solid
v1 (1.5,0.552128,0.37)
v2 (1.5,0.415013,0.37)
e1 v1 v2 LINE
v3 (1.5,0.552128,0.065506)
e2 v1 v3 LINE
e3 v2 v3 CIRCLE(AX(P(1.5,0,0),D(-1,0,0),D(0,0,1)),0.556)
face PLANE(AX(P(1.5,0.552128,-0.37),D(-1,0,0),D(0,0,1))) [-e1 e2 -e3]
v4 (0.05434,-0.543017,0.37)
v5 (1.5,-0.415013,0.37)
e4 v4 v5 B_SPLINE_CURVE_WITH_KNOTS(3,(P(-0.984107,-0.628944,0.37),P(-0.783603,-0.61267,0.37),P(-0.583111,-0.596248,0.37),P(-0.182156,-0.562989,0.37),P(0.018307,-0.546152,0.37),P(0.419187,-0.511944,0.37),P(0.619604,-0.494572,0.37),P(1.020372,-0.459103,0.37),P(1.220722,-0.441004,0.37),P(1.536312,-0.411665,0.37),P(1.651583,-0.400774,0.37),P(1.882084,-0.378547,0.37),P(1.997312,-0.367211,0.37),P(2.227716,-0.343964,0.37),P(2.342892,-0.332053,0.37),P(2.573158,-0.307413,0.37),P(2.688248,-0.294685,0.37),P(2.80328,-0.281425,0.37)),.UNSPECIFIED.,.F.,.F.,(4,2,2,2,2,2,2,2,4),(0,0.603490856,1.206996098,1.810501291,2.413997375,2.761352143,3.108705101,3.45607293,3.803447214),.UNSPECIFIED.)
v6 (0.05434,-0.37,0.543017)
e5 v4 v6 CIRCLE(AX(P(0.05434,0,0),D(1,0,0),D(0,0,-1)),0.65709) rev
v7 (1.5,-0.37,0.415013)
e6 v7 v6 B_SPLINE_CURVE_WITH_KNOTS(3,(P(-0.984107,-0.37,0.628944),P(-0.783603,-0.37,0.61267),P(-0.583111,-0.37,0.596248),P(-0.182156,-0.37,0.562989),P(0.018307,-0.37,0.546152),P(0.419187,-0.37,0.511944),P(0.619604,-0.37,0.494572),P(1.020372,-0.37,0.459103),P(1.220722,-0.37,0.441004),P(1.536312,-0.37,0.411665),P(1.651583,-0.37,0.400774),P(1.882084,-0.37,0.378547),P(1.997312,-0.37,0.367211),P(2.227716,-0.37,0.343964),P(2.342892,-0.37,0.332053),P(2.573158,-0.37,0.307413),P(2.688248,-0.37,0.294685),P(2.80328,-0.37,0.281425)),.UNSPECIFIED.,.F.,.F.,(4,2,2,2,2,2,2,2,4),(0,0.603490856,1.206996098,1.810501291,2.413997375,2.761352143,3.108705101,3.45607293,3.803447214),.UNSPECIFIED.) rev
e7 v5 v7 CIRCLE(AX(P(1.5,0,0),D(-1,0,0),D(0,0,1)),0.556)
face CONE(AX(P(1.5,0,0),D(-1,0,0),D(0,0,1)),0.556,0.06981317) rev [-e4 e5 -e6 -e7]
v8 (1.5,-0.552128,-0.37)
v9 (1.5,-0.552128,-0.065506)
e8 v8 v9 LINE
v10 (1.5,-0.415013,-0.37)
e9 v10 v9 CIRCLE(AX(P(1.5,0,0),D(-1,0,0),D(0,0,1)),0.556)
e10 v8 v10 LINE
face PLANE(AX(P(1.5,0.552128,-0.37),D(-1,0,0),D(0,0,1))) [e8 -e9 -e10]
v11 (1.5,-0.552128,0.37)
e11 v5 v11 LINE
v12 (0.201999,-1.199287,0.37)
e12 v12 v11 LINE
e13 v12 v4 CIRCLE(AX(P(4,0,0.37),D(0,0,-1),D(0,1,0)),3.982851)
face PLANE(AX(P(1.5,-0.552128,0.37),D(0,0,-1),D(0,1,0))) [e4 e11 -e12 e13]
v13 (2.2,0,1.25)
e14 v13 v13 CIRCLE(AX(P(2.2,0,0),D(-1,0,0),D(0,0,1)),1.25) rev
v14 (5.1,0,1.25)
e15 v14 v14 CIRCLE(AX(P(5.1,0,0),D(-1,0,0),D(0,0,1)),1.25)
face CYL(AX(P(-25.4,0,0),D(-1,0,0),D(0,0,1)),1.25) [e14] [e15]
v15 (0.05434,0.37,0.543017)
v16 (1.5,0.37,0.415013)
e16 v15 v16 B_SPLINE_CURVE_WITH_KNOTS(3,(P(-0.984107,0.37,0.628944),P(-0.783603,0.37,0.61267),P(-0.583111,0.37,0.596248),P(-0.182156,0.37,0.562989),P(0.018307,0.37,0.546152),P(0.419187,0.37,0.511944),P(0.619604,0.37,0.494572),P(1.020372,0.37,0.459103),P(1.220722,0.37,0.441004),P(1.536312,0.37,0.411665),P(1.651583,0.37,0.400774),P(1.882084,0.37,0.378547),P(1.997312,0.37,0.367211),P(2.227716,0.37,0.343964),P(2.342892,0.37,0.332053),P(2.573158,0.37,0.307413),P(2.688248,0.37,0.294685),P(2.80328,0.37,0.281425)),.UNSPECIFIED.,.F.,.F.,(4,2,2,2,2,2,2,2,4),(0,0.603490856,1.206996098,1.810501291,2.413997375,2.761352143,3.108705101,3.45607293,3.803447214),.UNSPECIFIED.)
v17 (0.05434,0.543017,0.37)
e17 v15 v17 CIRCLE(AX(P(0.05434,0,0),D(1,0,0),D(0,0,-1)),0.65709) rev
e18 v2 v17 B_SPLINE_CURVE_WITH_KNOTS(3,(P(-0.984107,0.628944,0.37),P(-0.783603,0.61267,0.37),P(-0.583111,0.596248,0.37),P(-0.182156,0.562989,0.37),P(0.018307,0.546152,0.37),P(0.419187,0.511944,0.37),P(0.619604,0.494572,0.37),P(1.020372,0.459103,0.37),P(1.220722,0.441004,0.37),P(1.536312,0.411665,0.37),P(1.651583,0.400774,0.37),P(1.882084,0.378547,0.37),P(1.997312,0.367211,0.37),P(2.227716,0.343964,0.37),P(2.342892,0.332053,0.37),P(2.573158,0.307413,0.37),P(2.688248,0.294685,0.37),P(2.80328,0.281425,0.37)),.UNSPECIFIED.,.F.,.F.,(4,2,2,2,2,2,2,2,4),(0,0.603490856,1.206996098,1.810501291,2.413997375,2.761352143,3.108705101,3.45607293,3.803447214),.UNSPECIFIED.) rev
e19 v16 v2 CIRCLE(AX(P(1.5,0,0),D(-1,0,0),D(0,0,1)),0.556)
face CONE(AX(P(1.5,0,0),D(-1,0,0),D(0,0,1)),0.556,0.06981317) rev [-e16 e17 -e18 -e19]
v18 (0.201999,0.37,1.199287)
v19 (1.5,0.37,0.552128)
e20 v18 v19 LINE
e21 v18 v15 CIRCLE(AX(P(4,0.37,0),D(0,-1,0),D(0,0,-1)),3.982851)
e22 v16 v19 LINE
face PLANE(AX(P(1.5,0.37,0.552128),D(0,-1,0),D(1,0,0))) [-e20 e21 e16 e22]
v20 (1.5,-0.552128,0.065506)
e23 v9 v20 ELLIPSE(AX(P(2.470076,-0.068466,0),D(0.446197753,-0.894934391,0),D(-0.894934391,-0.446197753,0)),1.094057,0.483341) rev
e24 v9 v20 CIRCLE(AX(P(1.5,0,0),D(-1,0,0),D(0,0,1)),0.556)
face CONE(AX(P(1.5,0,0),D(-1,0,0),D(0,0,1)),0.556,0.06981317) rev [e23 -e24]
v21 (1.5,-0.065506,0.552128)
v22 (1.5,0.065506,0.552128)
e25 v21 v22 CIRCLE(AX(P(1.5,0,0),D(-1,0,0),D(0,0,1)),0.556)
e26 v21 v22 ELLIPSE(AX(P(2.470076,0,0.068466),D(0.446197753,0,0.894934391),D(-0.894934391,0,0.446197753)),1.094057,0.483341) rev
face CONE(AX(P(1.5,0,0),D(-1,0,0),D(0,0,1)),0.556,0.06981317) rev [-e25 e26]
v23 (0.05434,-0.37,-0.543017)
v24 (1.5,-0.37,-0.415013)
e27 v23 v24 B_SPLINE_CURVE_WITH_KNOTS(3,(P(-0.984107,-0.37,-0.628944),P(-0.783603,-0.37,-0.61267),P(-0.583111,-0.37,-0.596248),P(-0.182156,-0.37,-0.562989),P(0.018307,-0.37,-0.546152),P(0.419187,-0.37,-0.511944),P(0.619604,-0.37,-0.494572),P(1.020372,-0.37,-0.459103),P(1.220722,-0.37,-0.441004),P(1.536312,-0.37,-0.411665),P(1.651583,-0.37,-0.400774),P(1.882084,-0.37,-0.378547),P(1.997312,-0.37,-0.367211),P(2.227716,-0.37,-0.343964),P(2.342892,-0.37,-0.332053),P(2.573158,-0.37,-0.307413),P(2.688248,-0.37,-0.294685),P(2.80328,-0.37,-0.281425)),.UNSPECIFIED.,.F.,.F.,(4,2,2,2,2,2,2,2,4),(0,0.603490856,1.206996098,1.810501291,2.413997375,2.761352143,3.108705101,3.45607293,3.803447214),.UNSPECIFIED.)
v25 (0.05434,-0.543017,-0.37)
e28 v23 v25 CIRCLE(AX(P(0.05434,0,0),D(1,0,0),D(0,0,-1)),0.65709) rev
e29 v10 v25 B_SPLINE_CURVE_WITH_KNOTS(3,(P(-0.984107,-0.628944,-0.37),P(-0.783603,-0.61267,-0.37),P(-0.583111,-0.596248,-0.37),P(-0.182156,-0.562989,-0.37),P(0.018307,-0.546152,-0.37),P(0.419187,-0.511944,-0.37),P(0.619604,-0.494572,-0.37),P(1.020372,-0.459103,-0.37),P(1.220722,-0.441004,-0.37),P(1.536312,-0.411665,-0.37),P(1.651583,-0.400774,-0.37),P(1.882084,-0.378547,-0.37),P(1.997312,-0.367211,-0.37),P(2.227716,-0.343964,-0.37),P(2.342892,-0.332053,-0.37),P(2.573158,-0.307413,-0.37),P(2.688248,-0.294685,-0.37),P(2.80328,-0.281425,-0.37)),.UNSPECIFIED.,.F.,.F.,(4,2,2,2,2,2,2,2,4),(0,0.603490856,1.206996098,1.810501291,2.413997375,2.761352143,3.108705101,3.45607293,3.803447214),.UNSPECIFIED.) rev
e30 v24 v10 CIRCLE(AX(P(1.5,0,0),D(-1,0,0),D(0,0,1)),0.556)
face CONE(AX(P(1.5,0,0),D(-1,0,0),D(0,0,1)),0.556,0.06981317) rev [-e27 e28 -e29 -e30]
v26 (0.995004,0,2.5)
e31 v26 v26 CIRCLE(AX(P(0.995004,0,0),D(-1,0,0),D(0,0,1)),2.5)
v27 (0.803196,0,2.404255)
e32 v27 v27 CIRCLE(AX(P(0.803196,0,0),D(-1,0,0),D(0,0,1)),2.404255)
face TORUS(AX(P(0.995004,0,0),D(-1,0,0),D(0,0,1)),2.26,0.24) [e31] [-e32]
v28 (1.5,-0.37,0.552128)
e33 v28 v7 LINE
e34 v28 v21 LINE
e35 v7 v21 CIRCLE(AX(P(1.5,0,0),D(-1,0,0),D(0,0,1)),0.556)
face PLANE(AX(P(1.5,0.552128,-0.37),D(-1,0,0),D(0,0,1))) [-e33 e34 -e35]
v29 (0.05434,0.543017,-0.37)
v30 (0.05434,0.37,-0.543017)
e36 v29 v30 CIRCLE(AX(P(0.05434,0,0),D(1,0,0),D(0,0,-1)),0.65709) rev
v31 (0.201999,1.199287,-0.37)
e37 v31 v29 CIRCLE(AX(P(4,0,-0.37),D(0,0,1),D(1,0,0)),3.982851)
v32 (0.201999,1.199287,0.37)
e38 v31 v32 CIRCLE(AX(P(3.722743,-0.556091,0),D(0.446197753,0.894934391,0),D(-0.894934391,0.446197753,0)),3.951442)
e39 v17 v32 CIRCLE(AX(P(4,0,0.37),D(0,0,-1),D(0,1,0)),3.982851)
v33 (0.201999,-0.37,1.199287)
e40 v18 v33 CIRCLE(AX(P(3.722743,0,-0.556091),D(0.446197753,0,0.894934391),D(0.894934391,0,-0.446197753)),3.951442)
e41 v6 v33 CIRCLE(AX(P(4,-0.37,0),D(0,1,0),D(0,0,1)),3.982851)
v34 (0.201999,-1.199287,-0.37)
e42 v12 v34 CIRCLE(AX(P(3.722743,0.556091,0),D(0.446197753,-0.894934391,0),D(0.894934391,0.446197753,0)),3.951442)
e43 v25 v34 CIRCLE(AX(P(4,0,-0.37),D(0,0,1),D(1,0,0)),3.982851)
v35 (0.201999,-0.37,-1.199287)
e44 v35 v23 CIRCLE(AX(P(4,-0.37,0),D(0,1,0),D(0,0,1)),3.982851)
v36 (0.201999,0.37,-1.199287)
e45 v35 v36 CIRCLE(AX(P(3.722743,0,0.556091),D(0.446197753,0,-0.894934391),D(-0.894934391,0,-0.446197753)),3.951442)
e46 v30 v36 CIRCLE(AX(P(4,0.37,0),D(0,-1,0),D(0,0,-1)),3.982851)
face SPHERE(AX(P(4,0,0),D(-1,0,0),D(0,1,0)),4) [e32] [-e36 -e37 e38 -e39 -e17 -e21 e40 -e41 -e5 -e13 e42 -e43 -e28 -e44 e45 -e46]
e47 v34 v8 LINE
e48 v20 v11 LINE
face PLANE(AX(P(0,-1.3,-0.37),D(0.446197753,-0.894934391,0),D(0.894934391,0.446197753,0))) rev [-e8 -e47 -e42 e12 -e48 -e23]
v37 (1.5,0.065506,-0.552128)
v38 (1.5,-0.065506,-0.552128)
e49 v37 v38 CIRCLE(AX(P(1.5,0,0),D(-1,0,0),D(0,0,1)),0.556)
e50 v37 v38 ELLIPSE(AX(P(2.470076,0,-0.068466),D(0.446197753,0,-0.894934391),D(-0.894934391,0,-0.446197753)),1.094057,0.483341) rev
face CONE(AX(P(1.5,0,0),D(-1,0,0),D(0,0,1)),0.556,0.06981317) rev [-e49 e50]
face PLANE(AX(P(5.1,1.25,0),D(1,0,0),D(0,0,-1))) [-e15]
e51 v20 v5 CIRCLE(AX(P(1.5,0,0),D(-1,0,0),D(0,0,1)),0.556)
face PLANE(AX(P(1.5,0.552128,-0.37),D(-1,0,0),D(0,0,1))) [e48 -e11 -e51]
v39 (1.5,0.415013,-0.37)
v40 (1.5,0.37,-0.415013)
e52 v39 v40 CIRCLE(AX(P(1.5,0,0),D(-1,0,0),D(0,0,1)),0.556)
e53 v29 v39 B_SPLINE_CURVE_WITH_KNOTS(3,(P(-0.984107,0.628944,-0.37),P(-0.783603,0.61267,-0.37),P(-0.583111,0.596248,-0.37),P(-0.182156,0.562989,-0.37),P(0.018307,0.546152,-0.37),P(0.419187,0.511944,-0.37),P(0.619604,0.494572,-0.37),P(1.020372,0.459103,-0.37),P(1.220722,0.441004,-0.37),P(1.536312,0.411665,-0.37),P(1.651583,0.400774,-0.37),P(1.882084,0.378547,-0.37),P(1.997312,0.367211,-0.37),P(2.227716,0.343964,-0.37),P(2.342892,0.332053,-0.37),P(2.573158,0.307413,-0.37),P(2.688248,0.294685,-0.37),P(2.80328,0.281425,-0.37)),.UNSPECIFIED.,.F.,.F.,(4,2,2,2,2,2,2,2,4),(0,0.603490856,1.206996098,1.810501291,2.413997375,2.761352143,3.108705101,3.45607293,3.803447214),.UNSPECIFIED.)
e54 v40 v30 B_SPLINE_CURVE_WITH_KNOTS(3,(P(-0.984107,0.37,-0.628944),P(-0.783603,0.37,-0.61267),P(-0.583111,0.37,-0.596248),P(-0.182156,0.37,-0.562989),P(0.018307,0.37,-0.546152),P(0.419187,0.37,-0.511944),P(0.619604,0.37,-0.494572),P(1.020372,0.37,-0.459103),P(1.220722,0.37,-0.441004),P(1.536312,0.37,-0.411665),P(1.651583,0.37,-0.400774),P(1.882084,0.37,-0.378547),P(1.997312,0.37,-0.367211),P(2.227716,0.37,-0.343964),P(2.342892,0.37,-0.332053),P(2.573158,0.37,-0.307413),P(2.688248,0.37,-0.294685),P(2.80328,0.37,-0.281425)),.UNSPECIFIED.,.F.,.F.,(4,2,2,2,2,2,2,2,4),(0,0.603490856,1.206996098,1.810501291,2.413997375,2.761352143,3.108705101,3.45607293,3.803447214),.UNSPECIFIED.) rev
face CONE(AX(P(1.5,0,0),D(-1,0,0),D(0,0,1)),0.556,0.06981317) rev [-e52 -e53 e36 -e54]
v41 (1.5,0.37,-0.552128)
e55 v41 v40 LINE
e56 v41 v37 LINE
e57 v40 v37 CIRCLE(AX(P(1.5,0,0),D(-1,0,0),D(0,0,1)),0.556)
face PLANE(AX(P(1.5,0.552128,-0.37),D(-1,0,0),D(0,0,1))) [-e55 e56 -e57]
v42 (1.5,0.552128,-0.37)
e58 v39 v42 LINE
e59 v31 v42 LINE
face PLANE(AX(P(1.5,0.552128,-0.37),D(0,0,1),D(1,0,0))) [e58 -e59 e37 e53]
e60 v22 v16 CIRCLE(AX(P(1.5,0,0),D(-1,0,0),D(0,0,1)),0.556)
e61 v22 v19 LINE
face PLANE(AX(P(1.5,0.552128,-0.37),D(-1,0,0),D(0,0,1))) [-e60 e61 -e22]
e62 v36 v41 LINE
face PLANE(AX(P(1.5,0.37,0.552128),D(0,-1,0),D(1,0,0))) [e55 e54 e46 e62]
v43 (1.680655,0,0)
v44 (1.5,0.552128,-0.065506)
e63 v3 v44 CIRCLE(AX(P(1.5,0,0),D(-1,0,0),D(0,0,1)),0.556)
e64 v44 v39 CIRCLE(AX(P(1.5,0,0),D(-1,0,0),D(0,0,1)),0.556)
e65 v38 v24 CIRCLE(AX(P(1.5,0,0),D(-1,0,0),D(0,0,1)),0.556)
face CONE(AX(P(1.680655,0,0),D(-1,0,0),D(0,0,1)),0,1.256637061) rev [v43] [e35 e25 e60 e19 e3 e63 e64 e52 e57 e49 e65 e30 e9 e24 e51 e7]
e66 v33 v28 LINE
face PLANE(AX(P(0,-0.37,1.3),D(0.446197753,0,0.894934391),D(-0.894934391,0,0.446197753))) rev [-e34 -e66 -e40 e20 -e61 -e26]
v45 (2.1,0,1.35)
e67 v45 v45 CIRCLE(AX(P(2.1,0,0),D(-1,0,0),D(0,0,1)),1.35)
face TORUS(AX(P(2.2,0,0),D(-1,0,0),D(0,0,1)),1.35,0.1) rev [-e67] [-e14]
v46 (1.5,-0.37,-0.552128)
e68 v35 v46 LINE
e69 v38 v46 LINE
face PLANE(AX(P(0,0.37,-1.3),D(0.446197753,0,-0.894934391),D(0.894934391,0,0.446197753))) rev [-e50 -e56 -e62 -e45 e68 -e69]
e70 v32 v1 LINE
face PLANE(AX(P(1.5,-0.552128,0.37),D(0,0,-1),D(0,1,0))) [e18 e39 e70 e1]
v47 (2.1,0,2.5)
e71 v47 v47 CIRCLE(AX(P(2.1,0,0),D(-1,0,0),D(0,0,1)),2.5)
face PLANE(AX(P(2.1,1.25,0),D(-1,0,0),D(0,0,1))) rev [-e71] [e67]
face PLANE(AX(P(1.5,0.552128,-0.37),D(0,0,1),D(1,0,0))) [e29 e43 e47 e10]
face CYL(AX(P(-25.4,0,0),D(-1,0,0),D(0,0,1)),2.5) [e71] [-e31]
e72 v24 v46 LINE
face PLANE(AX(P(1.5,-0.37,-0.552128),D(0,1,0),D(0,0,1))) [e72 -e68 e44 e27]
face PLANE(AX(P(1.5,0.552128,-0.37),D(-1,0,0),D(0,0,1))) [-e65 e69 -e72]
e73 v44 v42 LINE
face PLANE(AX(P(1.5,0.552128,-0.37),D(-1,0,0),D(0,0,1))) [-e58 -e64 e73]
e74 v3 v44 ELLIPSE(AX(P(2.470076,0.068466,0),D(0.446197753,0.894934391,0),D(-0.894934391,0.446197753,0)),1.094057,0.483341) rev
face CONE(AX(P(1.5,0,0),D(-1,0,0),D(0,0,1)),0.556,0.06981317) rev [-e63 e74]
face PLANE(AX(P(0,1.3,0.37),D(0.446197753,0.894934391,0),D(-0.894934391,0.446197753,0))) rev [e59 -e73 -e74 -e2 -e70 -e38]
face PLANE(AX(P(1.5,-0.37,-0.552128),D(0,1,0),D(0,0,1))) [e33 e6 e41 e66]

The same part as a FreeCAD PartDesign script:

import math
import FreeCAD as App
import Part
import Sketcher
from FreeCAD import Vector
Q = App.Units.Quantity


def edges_at(feature, points):
    """Names of the edges that pass closest to the given points."""
    edges = feature.Shape.Edges
    near = lambda p: min(range(len(edges)), key=lambda i: edges[i].distToShape(Part.Vertex(*p))[0])
    return sorted({f"Edge{near(p) + 1}" for p in points})

doc = App.newDocument("Part")
body = doc.addObject("PartDesign::Body", "Body")

sketch1 = body.newObject("Sketcher::SketchObject", "Sketch")
sketch1.AttachmentSupport = (doc.getObject("XY_Plane"), [""])
sketch1.MapMode = "FlatFace"
sketch1.addGeometry(Part.LineSegment(Vector(2.1, 1.25, 0), Vector(2.1, 2.5, 0)), False)
sketch1.addGeometry(Part.LineSegment(Vector(2.1, 2.5, 0), Vector(0.995004, 2.5, 0)), False)
sketch1.addGeometry(Part.ArcOfCircle(Part.Circle(Vector(0.995004, 2.26, 0), Vector(0, 0, 1), 0.24), math.radians(90), math.radians(143.053873)), False)
sketch1.addGeometry(Part.ArcOfCircle(Part.Circle(Vector(4, 0, 0), Vector(0, 0, 1), 4), math.radians(143.053873), math.radians(180)), False)
sketch1.addGeometry(Part.LineSegment(Vector(0, 0, 0), Vector(5.1, 0, 0)), False)
sketch1.addGeometry(Part.LineSegment(Vector(5.1, 0, 0), Vector(5.1, 1.25, 0)), False)
sketch1.addGeometry(Part.LineSegment(Vector(5.1, 1.25, 0), Vector(2.1, 1.25, 0)), False)
sketch1.addConstraint(Sketcher.Constraint("Coincident", 0, 2, 1, 1))
sketch1.addConstraint(Sketcher.Constraint("Tangent", 1, 2, 2, 1))
sketch1.addConstraint(Sketcher.Constraint("Tangent", 2, 2, 3, 1))
sketch1.addConstraint(Sketcher.Constraint("Coincident", 3, 2, 4, 1))
sketch1.addConstraint(Sketcher.Constraint("Coincident", 4, 2, 5, 1))
sketch1.addConstraint(Sketcher.Constraint("Coincident", 5, 2, 6, 1))
sketch1.addConstraint(Sketcher.Constraint("Coincident", 6, 2, 0, 1))
sketch1.addConstraint(Sketcher.Constraint("Vertical", 0))
sketch1.addConstraint(Sketcher.Constraint("Horizontal", 1))
sketch1.addConstraint(Sketcher.Constraint("Horizontal", 4))
sketch1.addConstraint(Sketcher.Constraint("Vertical", 5))
sketch1.addConstraint(Sketcher.Constraint("Horizontal", 6))
sketch1.addConstraint(Sketcher.Constraint("Coincident", 3, 2, -1, 1))
sketch1.addConstraint(Sketcher.Constraint("PointOnObject", 3, 3, -1))
sketch1.addConstraint(Sketcher.Constraint("Equal", 0, 5))
sketch1.addConstraint(Sketcher.Constraint("Radius", 3, Q("4 mm")))
sketch1.addConstraint(Sketcher.Constraint("DistanceX", 6, 2, 6, 1, Q("3 mm")))
sketch1.addConstraint(Sketcher.Constraint("Radius", 2, Q("0.24 mm")))
sketch1.addConstraint(Sketcher.Constraint("DistanceX", 4, 1, 4, 2, Q("5.1 mm")))
sketch1.addConstraint(Sketcher.Constraint("DistanceY", 0, 1, 0, 2, Q("1.25 mm")))
revolution = body.newObject("PartDesign::Revolution", "Revolution")
revolution.Profile = sketch1
revolution.ReferenceAxis = (sketch1, ["H_Axis"])
revolution.Angle = 360
doc.recompute()

fillet = body.newObject("PartDesign::Fillet", "Fillet")
fillet.Base = (revolution, edges_at(revolution, [(2.1, 0, -1.25)]))
fillet.Radius = 0.1

sketch2 = body.newObject("Sketcher::SketchObject", "Sketch001")
sketch2.AttachmentSupport = (doc.getObject("YZ_Plane"), [""])
sketch2.MapMode = "FlatFace"
sketch2.addGeometry(Part.LineSegment(Vector(-1.3, 0.37, 0), Vector(-1.3, -0.37, 0)), False)
sketch2.addGeometry(Part.LineSegment(Vector(-1.3, -0.37, 0), Vector(1.3, -0.37, 0)), False)
sketch2.addGeometry(Part.LineSegment(Vector(1.3, -0.37, 0), Vector(1.3, 0.37, 0)), False)
sketch2.addGeometry(Part.LineSegment(Vector(1.3, 0.37, 0), Vector(-1.3, 0.37, 0)), False)
sketch2.addConstraint(Sketcher.Constraint("Coincident", 0, 2, 1, 1))
sketch2.addConstraint(Sketcher.Constraint("Coincident", 1, 2, 2, 1))
sketch2.addConstraint(Sketcher.Constraint("Coincident", 2, 2, 3, 1))
sketch2.addConstraint(Sketcher.Constraint("Coincident", 3, 2, 0, 1))
sketch2.addConstraint(Sketcher.Constraint("Vertical", 0))
sketch2.addConstraint(Sketcher.Constraint("Horizontal", 1))
sketch2.addConstraint(Sketcher.Constraint("Vertical", 2))
sketch2.addConstraint(Sketcher.Constraint("Horizontal", 3))
sketch2.addConstraint(Sketcher.Constraint("Symmetric", 0, 2, 2, 2, -1, 1))
sketch2.addConstraint(Sketcher.Constraint("DistanceX", 1, 1, 1, 2, Q("2.6 mm")))
sketch2.addConstraint(Sketcher.Constraint("DistanceY", 0, 2, 0, 1, Q("0.74 mm")))

sketch3 = body.newObject("Sketcher::SketchObject", "Sketch002")
sketch3.AttachmentSupport = (doc.getObject("YZ_Plane"), [""])
sketch3.MapMode = "FlatFace"
sketch3.AttachmentOffset = App.Placement(Vector(0, 0, 1.5), App.Rotation())
sketch3.addGeometry(Part.LineSegment(Vector(-0.552128, 0.37, 0), Vector(-0.552128, -0.37, 0)), False)
sketch3.addGeometry(Part.LineSegment(Vector(-0.552128, -0.37, 0), Vector(0.552128, -0.37, 0)), False)
sketch3.addGeometry(Part.LineSegment(Vector(0.552128, -0.37, 0), Vector(0.552128, 0.37, 0)), False)
sketch3.addGeometry(Part.LineSegment(Vector(0.552128, 0.37, 0), Vector(-0.552128, 0.37, 0)), False)
sketch3.addConstraint(Sketcher.Constraint("Coincident", 0, 2, 1, 1))
sketch3.addConstraint(Sketcher.Constraint("Coincident", 1, 2, 2, 1))
sketch3.addConstraint(Sketcher.Constraint("Coincident", 2, 2, 3, 1))
sketch3.addConstraint(Sketcher.Constraint("Coincident", 3, 2, 0, 1))
sketch3.addConstraint(Sketcher.Constraint("Vertical", 0))
sketch3.addConstraint(Sketcher.Constraint("Horizontal", 1))
sketch3.addConstraint(Sketcher.Constraint("Vertical", 2))
sketch3.addConstraint(Sketcher.Constraint("Horizontal", 3))
sketch3.addConstraint(Sketcher.Constraint("Symmetric", 0, 2, 2, 2, -1, 1))
sketch3.addConstraint(Sketcher.Constraint("DistanceY", 0, 2, 0, 1, Q("0.74 mm")))
sketch3.addConstraint(Sketcher.Constraint("DistanceX", 1, 1, 1, 2, Q("1.104255 mm")))

subtractiveloft = body.newObject("PartDesign::SubtractiveLoft", "SubtractiveLoft")
subtractiveloft.Profile = sketch2
subtractiveloft.Sections = [sketch3]
doc.recompute()

polarpattern = body.newObject("PartDesign::PolarPattern", "PolarPattern")
polarpattern.Originals = [subtractiveloft]
polarpattern.Axis = (doc.getObject("X_Axis"), [""])
polarpattern.Angle = 90
polarpattern.Occurrences = 2
body.Tip = polarpattern

sketch4 = body.newObject("Sketcher::SketchObject", "Sketch003")
sketch4.AttachmentSupport = (doc.getObject("XY_Plane"), [""])
sketch4.MapMode = "FlatFace"
sketch4.addGeometry(Part.LineSegment(Vector(0, 0.66089, 0), Vector(0, 0, 0)), False)
sketch4.addGeometry(Part.LineSegment(Vector(0, 0, 0), Vector(1.680655, 0, 0)), False)
sketch4.addGeometry(Part.LineSegment(Vector(1.680655, 0, 0), Vector(1.5, 0.556, 0)), False)
sketch4.addGeometry(Part.LineSegment(Vector(1.5, 0.556, 0), Vector(0, 0.66089, 0)), False)
sketch4.addConstraint(Sketcher.Constraint("Coincident", 0, 2, 1, 1))
sketch4.addConstraint(Sketcher.Constraint("Coincident", 1, 2, 2, 1))
sketch4.addConstraint(Sketcher.Constraint("Coincident", 2, 2, 3, 1))
sketch4.addConstraint(Sketcher.Constraint("Coincident", 3, 2, 0, 1))
sketch4.addConstraint(Sketcher.Constraint("Vertical", 0))
sketch4.addConstraint(Sketcher.Constraint("Horizontal", 1))
sketch4.addConstraint(Sketcher.Constraint("Coincident", 0, 2, -1, 1))
sketch4.addConstraint(Sketcher.Constraint("Angle", 2, Q("108 deg")))
sketch4.addConstraint(Sketcher.Constraint("Angle", 3, Q("176 deg")))
sketch4.addConstraint(Sketcher.Constraint("DistanceX", -1, 1, 2, 2, Q("1.5 mm")))
sketch4.addConstraint(Sketcher.Constraint("DistanceY", -1, 1, 2, 2, Q("0.556 mm")))
groove = body.newObject("PartDesign::Groove", "Groove")
groove.Profile = sketch4
groove.ReferenceAxis = (sketch4, ["H_Axis"])
groove.Angle = 360

doc.recompute()
